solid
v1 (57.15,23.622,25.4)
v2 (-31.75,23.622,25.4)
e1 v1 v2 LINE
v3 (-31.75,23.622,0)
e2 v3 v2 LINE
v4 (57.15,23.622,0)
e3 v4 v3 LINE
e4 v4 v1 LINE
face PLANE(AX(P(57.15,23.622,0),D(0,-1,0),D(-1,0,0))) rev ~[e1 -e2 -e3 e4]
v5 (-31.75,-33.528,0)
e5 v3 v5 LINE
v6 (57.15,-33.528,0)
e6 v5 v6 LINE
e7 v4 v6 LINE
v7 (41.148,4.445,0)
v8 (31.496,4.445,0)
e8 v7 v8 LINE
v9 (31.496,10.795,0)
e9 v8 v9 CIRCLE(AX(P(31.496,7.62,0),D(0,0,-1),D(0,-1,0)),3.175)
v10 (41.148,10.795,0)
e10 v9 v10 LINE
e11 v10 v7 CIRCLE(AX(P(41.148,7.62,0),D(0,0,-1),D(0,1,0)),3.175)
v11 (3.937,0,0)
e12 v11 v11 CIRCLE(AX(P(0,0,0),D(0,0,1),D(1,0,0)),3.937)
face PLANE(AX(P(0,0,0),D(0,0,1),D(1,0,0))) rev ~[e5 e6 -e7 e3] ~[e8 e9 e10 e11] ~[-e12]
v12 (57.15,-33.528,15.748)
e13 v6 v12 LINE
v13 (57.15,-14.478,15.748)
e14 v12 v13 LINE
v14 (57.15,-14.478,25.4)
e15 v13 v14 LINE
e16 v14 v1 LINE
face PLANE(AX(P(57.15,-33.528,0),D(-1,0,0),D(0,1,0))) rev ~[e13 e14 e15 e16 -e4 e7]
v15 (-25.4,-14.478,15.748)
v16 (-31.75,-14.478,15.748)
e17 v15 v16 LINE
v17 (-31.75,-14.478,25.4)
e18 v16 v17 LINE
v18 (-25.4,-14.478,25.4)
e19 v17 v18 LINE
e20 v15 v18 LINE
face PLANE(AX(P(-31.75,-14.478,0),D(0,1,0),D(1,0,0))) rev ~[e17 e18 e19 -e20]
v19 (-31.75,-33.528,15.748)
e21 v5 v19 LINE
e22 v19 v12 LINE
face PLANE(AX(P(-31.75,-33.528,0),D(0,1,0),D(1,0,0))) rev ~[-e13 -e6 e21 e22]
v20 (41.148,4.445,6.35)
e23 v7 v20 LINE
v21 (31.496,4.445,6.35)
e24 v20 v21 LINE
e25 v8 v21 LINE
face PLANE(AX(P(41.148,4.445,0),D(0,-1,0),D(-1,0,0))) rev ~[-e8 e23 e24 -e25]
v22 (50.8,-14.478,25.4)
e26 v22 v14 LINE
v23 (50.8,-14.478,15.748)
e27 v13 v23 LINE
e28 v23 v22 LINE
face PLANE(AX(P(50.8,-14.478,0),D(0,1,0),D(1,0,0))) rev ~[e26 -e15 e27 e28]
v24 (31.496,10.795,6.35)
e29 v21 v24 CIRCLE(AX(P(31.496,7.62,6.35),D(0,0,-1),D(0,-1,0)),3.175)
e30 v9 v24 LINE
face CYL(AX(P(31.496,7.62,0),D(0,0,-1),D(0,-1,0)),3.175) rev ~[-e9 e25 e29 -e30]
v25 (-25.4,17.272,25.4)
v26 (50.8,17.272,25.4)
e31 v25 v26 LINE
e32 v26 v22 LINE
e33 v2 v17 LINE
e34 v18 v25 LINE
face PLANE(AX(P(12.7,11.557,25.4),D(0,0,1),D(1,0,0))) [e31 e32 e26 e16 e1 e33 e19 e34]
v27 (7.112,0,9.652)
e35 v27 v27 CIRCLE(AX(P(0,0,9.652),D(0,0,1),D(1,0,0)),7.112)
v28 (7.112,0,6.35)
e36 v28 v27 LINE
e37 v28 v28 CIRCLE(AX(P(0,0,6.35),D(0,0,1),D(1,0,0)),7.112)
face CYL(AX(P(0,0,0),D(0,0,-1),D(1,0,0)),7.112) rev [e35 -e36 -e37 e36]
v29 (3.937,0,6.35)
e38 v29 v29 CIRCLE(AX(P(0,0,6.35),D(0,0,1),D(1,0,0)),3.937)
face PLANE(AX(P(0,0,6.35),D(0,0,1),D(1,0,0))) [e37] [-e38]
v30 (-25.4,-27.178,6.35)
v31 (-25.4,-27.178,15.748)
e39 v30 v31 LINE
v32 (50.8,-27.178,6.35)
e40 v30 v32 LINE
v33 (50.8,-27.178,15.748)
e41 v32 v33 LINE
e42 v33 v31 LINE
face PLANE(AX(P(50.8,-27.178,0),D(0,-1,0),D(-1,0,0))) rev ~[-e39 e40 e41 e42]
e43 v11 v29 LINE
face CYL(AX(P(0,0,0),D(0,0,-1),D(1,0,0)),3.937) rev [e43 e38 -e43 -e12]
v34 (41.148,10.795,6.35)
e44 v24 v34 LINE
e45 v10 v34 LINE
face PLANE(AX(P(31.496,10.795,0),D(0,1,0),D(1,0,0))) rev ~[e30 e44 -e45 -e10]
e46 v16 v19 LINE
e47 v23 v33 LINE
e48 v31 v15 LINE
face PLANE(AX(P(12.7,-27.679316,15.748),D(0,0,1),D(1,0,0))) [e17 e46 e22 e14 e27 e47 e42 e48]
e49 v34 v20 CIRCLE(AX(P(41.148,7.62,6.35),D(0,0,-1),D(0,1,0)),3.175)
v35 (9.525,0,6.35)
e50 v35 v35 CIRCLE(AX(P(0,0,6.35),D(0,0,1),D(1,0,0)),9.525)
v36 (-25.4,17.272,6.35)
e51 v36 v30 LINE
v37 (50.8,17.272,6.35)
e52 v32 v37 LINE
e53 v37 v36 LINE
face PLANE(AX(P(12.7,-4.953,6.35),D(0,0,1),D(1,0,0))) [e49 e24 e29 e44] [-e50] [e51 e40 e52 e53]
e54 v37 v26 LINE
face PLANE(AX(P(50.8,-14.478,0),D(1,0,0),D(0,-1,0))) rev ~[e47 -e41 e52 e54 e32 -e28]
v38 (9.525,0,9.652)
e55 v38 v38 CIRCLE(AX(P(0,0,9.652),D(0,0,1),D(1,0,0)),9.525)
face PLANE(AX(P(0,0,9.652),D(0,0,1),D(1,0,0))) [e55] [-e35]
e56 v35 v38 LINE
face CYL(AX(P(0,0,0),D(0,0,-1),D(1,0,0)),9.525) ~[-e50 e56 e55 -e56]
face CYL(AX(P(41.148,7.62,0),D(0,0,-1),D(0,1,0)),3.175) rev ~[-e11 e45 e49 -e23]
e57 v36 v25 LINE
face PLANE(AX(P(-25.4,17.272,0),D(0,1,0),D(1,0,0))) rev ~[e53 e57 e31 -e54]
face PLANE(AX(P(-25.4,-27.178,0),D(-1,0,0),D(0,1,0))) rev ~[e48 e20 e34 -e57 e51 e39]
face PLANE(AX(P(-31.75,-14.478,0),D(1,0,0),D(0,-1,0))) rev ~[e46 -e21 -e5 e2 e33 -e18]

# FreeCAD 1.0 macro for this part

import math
import FreeCAD as App
import Part
import Sketcher

V = App.Vector
Q = App.Units.Quantity


def add_polygon(sketch, points):
    """Adds a closed chain of lines whose ends are joined by coincident constraints."""
    first, n = sketch.GeometryCount, len(points)
    for a, b in zip(points, points[1:] + points[:1]):
        sketch.addGeometry(Part.LineSegment(App.Vector(*a, 0), App.Vector(*b, 0)), False)
    for i in range(n):
        sketch.addConstraint(Sketcher.Constraint("Coincident", first + i, 2, first + (i + 1) % n, 1))

doc = App.newDocument("Part")
body = doc.addObject("PartDesign::Body", "Body")

# Sketch on XY plane
sketch1 = body.newObject("Sketcher::SketchObject", "Sketch")
sketch1.AttachmentSupport = (doc.getObject("XY_Plane"), [""])
sketch1.MapMode = "FlatFace"
add_polygon(sketch1, [(57, 24), (-32, 24), (-32, -14), (-25, -14), (-25, 17), (51, 17), (51, -14), (57, -14)])  # lines 0-7
sketch1.addConstraint([
    Sketcher.Constraint("Horizontal", 0),
    Sketcher.Constraint("Vertical", 1),
    Sketcher.Constraint("Horizontal", 2),
    Sketcher.Constraint("Vertical", 3),
    Sketcher.Constraint("Horizontal", 4),
    Sketcher.Constraint("Vertical", 5),
    Sketcher.Constraint("Horizontal", 6),
    Sketcher.Constraint("Vertical", 7),
    Sketcher.Constraint("Horizontal", 2, 2, 5, 2),
    Sketcher.Constraint("Equal", 2, 6),
    Sketcher.Constraint("DistanceX", 4, 1, 4, 2, Q("3 in")),
    Sketcher.Constraint("DistanceX", 0, 2, 0, 1, Q("3.5 in")),
    Sketcher.Constraint("DistanceY", 1, 2, 1, 1, Q("1.5 in")),
    Sketcher.Constraint("DistanceX", 2, 2, -1, 1, Q("1 in")),
    Sketcher.Constraint("DistanceY", 3, 1, 3, 2, Q("1.25 in")),
    Sketcher.Constraint("DistanceY", -1, 1, 0, 2, Q("0.93 in")),
])
pad1 = body.newObject("PartDesign::Pad", "Pad")
pad1.Profile = sketch1
pad1.Length = Q("1 in")

# Sketch on XY plane
sketch2 = body.newObject("Sketcher::SketchObject", "Sketch001")
sketch2.AttachmentSupport = (doc.getObject("XY_Plane"), [""])
sketch2.MapMode = "FlatFace"
add_polygon(sketch2, [(-25, -14), (-32, -14), (-32, -34), (57, -34), (57, -14), (51, -14), (51, -27), (-25, -27)])  # lines 0-7
sketch2.addConstraint([
    Sketcher.Constraint("Horizontal", 0),
    Sketcher.Constraint("Vertical", 1),
    Sketcher.Constraint("Horizontal", 2),
    Sketcher.Constraint("Vertical", 3),
    Sketcher.Constraint("Horizontal", 4),
    Sketcher.Constraint("Vertical", 5),
    Sketcher.Constraint("Horizontal", 6),
    Sketcher.Constraint("Vertical", 7),
    Sketcher.Constraint("Horizontal", 0, 2, 3, 2),
    Sketcher.Constraint("Equal", 0, 4),
    Sketcher.Constraint("DistanceX", 6, 2, 6, 1, Q("3 in")),
    Sketcher.Constraint("DistanceX", 2, 1, 2, 2, Q("3.5 in")),
    Sketcher.Constraint("DistanceY", 5, 2, 5, 1, Q("0.5 in")),
    Sketcher.Constraint("DistanceX", -1, 1, 4, 2, Q("2 in")),
    Sketcher.Constraint("DistanceY", 1, 2, 1, 1, Q("0.75 in")),
    Sketcher.Constraint("DistanceY", 0, 2, -1, 1, Q("0.57 in")),
])
pad2 = body.newObject("PartDesign::Pad", "Pad001")
pad2.Profile = sketch2
pad2.Length = Q("0.62 in")

# Sketch on XY plane
sketch3 = body.newObject("Sketcher::SketchObject", "Sketch002")
sketch3.AttachmentSupport = (doc.getObject("XY_Plane"), [""])
sketch3.MapMode = "FlatFace"
add_polygon(sketch3, [(-25.4, 17.3), (-25.4, -27.2), (50.8, -27.2), (50.8, 17.3)])  # lines 0-3
sketch3.addGeometry(Part.Circle(V(0, 0, 0), V(0, 0, 1), 9.5), False)  # 4
sketch3.addGeometry(Part.LineSegment(V(41.1, 4.4, 0), V(31.5, 4.4, 0)), False)  # 5
sketch3.addGeometry(Part.ArcOfCircle(Part.Circle(V(31.5, 7.6, 0), V(0, 0, 1), 3.2), math.radians(90), math.radians(270)), False)  # 6
sketch3.addGeometry(Part.LineSegment(V(31.5, 10.8, 0), V(41.1, 10.8, 0)), False)  # 7
sketch3.addGeometry(Part.ArcOfCircle(Part.Circle(V(41.1, 7.6, 0), V(0, 0, 1), 3.2), math.radians(-90), math.radians(90)), False)  # 8
sketch3.addConstraint([
    Sketcher.Constraint("Tangent", 5, 2, 6, 2),
    Sketcher.Constraint("Tangent", 6, 1, 7, 1),
    Sketcher.Constraint("Tangent", 7, 2, 8, 2),
    Sketcher.Constraint("Tangent", 8, 1, 5, 1),
    Sketcher.Constraint("Vertical", 0),
    Sketcher.Constraint("Horizontal", 1),
    Sketcher.Constraint("Vertical", 2),
    Sketcher.Constraint("Horizontal", 3),
    Sketcher.Constraint("Horizontal", 5),
    Sketcher.Constraint("Horizontal", 7),
    Sketcher.Constraint("Coincident", 4, 3, -1, 1),
    Sketcher.Constraint("Diameter", 4, Q("0.75 in")),
    Sketcher.Constraint("DistanceX", 1, 1, 1, 2, Q("3 in")),
    Sketcher.Constraint("DistanceX", 0, 2, -1, 1, Q("1 in")),
    Sketcher.Constraint("Radius", 6, Q("0.125 in")),
    Sketcher.Constraint("DistanceX", 5, 2, 5, 1, Q("0.38 in")),
    Sketcher.Constraint("DistanceY", 0, 2, 0, 1, Q("1.75 in")),
    Sketcher.Constraint("DistanceY", -1, 1, 6, 3, Q("0.3 in")),
    Sketcher.Constraint("DistanceX", -1, 1, 6, 3, Q("1.24 in")),
    Sketcher.Constraint("DistanceY", 0, 2, -1, 1, Q("1.07 in")),
])
pad3 = body.newObject("PartDesign::Pad", "Pad002")
pad3.Profile = sketch3
pad3.Length = Q("0.25 in")

# Sketch on XY plane
sketch4 = body.newObject("Sketcher::SketchObject", "Sketch003")
sketch4.AttachmentSupport = (doc.getObject("XY_Plane"), [""])
sketch4.MapMode = "FlatFace"
sketch4.addGeometry([
    Part.Circle(V(0, 0, 0), V(0, 0, 1), 10),
    Part.Circle(V(0, 0, 0), V(0, 0, 1), 7),
], False)
sketch4.addConstraint([
    Sketcher.Constraint("Coincident", 0, 3, -1, 1),
    Sketcher.Constraint("Coincident", 1, 3, -1, 1),
    Sketcher.Constraint("Diameter", 0, Q("0.75 in")),
    Sketcher.Constraint("Diameter", 1, Q("0.56 in")),
])
pad4 = body.newObject("PartDesign::Pad", "Pad003")
pad4.Profile = sketch4
pad4.Length = Q("0.38 in")

# Sketch on XY plane
sketch5 = body.newObject("Sketcher::SketchObject", "Sketch004")
sketch5.AttachmentSupport = (doc.getObject("XY_Plane"), [""])
sketch5.MapMode = "FlatFace"
sketch5.addGeometry([
    Part.Circle(V(0, 0, 0), V(0, 0, 1), 7.1),
    Part.Circle(V(0, 0, 0), V(0, 0, 1), 3.9),
], False)
sketch5.addConstraint([
    Sketcher.Constraint("Coincident", 0, 3, -1, 1),
    Sketcher.Constraint("Coincident", 1, 3, -1, 1),
    Sketcher.Constraint("Diameter", 0, Q("0.56 in")),
    Sketcher.Constraint("Diameter", 1, Q("0.31 in")),
])
pad5 = body.newObject("PartDesign::Pad", "Pad004")
pad5.Profile = sketch5
pad5.Length = Q("0.25 in")

doc.recompute()
